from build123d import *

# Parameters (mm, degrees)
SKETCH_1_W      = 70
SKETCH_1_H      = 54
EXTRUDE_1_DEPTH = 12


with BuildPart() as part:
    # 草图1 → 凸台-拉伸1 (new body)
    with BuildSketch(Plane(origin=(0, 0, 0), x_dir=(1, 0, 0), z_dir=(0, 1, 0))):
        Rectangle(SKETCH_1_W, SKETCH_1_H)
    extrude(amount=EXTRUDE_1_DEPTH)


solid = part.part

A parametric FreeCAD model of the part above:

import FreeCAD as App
import Part
import Sketcher
Q = App.Units.Quantity


def add_polygon(sketch, points):
    """Adds a closed chain of lines whose ends are joined by coincident constraints."""
    first, n = sketch.GeometryCount, len(points)
    for a, b in zip(points, points[1:] + points[:1]):
        sketch.addGeometry(Part.LineSegment(App.Vector(*a, 0), App.Vector(*b, 0)), False)
    for i in range(n):
        sketch.addConstraint(Sketcher.Constraint("Coincident", first + i, 2, first + (i + 1) % n, 1))

doc = App.newDocument("Part")
params = doc.addObject("Spreadsheet::Sheet", "Params")
for row, (alias, value) in enumerate([
    ("sketch1_width", "70 mm"),
    ("sketch1_height", "54 mm"),
    ("pad1_length", "12 mm"),
], start=1):
    params.set(f"A{row}", alias)
    params.set(f"B{row}", "=" + value)
    params.setAlias(f"B{row}", alias)

body = doc.addObject("PartDesign::Body", "Body")

# Sketch on XZ plane
sketch1 = doc.addObject("Sketcher::SketchObject", "Sketch")
body.addObject(sketch1)
sketch1.AttachmentSupport = (doc.XZ_Plane, [""])
sketch1.MapMode = "FlatFace"
add_polygon(sketch1, [(-35, -27), (-35, 27), (35, 27), (35, -27)])  # lines 0-3
sketch1.addConstraint([
    Sketcher.Constraint("Vertical", 0),
    Sketcher.Constraint("Horizontal", 1),
    Sketcher.Constraint("Vertical", 2),
    Sketcher.Constraint("Horizontal", 3),
    Sketcher.Constraint("Symmetric", 0, 2, 2, 2, -1, 1),
    Sketcher.Constraint("DistanceX", 1, 1, 1, 2, Q("70 mm")),
    Sketcher.Constraint("DistanceY", 0, 1, 0, 2, Q("54 mm")),
])
sketch1.setExpression("Constraints[9]", "Params.sketch1_width")
sketch1.setExpression("Constraints[10]", "Params.sketch1_height")
pad1 = doc.addObject("PartDesign::Pad", "Pad")
body.addObject(pad1)
pad1.Profile = sketch1
pad1.setExpression("Length", "Params.pad1_length")
pad1.Reversed = True

doc.recompute()
